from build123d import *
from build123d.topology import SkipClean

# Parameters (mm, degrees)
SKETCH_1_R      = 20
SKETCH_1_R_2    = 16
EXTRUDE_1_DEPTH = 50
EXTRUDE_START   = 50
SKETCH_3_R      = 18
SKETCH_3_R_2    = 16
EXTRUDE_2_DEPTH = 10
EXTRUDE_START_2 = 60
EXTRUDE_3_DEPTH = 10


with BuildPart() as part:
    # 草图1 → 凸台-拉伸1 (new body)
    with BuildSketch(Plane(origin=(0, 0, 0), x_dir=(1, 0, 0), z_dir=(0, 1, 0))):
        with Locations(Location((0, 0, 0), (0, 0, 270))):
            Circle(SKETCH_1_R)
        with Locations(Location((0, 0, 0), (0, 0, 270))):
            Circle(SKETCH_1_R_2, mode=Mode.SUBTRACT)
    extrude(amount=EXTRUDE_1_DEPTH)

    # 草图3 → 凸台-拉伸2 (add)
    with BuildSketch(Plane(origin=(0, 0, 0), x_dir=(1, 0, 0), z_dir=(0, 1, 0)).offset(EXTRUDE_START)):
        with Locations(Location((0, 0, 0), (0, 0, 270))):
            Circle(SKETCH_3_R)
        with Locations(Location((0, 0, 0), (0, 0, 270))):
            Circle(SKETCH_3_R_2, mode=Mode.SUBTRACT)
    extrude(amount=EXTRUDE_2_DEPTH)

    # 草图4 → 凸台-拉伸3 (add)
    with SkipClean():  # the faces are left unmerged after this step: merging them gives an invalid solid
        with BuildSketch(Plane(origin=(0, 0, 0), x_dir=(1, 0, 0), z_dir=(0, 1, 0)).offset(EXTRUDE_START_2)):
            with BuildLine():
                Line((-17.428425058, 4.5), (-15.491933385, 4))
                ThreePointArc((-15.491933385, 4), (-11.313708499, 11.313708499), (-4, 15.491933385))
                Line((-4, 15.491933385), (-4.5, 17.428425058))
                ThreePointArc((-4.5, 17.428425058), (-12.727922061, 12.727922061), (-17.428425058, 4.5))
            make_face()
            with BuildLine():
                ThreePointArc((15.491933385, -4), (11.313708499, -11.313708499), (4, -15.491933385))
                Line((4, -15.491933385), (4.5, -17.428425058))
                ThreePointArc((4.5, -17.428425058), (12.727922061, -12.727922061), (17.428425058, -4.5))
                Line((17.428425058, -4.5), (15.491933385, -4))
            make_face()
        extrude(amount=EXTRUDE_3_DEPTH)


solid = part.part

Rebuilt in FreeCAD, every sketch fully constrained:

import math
import FreeCAD as App
import Part
import Sketcher
from FreeCAD import Vector
Q = App.Units.Quantity

doc = App.newDocument("Part")
body = doc.addObject("PartDesign::Body", "Body")

# Sketch on XZ plane
sketch1 = doc.addObject("Sketcher::SketchObject", "Sketch")
body.addObject(sketch1)
sketch1.AttachmentSupport = (doc.XZ_Plane, [""])
sketch1.MapMode = "FlatFace"
sketch1.addGeometry(Part.Circle(Vector(0, 0, 0), Vector(0, 0, 1), 20), False)
sketch1.addGeometry(Part.Circle(Vector(0, 0, 0), Vector(0, 0, 1), 16), False)
sketch1.addConstraint(Sketcher.Constraint("Coincident", 0, 3, -1, 1))
sketch1.addConstraint(Sketcher.Constraint("Coincident", 1, 3, -1, 1))
sketch1.addConstraint(Sketcher.Constraint("Diameter", 0, Q("40 mm")))
sketch1.addConstraint(Sketcher.Constraint("Diameter", 1, Q("32 mm")))
pad1 = doc.addObject("PartDesign::Pad", "Pad")
body.addObject(pad1)
pad1.Profile = sketch1
pad1.Length = 50
pad1.Reversed = True

# Sketch on XZ plane
sketch2 = doc.addObject("Sketcher::SketchObject", "Sketch001")
body.addObject(sketch2)
sketch2.AttachmentSupport = (doc.XZ_Plane, [""])
sketch2.MapMode = "FlatFace"
sketch2.AttachmentOffset = App.Placement(Vector(0, 0, -50), App.Rotation())
sketch2.addGeometry(Part.Circle(Vector(0, 0, 0), Vector(0, 0, 1), 18), False)
sketch2.addGeometry(Part.Circle(Vector(0, 0, 0), Vector(0, 0, 1), 16), False)
sketch2.addConstraint(Sketcher.Constraint("Coincident", 0, 3, -1, 1))
sketch2.addConstraint(Sketcher.Constraint("Coincident", 1, 3, -1, 1))
sketch2.addConstraint(Sketcher.Constraint("Diameter", 0, Q("36 mm")))
sketch2.addConstraint(Sketcher.Constraint("Diameter", 1, Q("32 mm")))
pad2 = doc.addObject("PartDesign::Pad", "Pad001")
body.addObject(pad2)
pad2.Profile = sketch2
pad2.Length = 10
pad2.Reversed = True

# Sketch on XZ plane
sketch3 = doc.addObject("Sketcher::SketchObject", "Sketch002")
body.addObject(sketch3)
sketch3.AttachmentSupport = (doc.XZ_Plane, [""])
sketch3.MapMode = "FlatFace"
sketch3.AttachmentOffset = App.Placement(Vector(0, 0, -60), App.Rotation())
sketch3.addGeometry(Part.LineSegment(Vector(-17.428425, -4.5, 0), Vector(-15.491933, -4, 0)), False)
sketch3.addGeometry(Part.ArcOfCircle(Part.Circle(Vector(0, 0, 0), Vector(0, 0, 1), 16), math.radians(-165.522488), math.radians(-104.477512)), False)
sketch3.addGeometry(Part.LineSegment(Vector(-4, -15.491933, 0), Vector(-4.5, -17.428425, 0)), False)
sketch3.addGeometry(Part.ArcOfCircle(Part.Circle(Vector(0, 0, 0), Vector(0, 0, 1), 18), math.radians(-165.522488), math.radians(-104.477512)), False)
sketch3.addGeometry(Part.ArcOfCircle(Part.Circle(Vector(0, 0, 0), Vector(0, 0, 1), 16), math.radians(14.477512), math.radians(75.522488)), False)
sketch3.addGeometry(Part.LineSegment(Vector(4, 15.491933, 0), Vector(4.5, 17.428425, 0)), False)
sketch3.addGeometry(Part.ArcOfCircle(Part.Circle(Vector(0, 0, 0), Vector(0, 0, 1), 18), math.radians(14.477512), math.radians(75.522488)), False)
sketch3.addGeometry(Part.LineSegment(Vector(17.428425, 4.5, 0), Vector(15.491933, 4, 0)), False)
sketch3.addConstraint(Sketcher.Constraint("Coincident", 0, 2, 1, 1))
sketch3.addConstraint(Sketcher.Constraint("Coincident", 1, 2, 2, 1))
sketch3.addConstraint(Sketcher.Constraint("Coincident", 2, 2, 3, 2))
sketch3.addConstraint(Sketcher.Constraint("Coincident", 3, 1, 0, 1))
sketch3.addConstraint(Sketcher.Constraint("Coincident", 4, 2, 5, 1))
sketch3.addConstraint(Sketcher.Constraint("Coincident", 5, 2, 6, 2))
sketch3.addConstraint(Sketcher.Constraint("Coincident", 6, 1, 7, 1))
sketch3.addConstraint(Sketcher.Constraint("Coincident", 7, 2, 4, 1))
sketch3.addConstraint(Sketcher.Constraint("Coincident", 1, 3, -1, 1))
sketch3.addConstraint(Sketcher.Constraint("Coincident", 3, 3, -1, 1))
sketch3.addConstraint(Sketcher.Constraint("Coincident", 4, 3, -1, 1))
sketch3.addConstraint(Sketcher.Constraint("Coincident", 6, 3, -1, 1))
sketch3.addConstraint(Sketcher.Constraint("Equal", 1, 4))
sketch3.addConstraint(Sketcher.Constraint("Equal", 3, 6))
sketch3.addConstraint(Sketcher.Constraint("Parallel", 2, 5))
sketch3.addConstraint(Sketcher.Constraint("Parallel", 0, 7))
sketch3.addConstraint(Sketcher.Constraint("Radius", 1, Q("16 mm")))
sketch3.addConstraint(Sketcher.Constraint("Radius", 3, Q("18 mm")))
sketch3.addConstraint(Sketcher.Constraint("DistanceY", 0, 2, -1, 1, Q("4 mm")))
sketch3.addConstraint(Sketcher.Constraint("DistanceX", 1, 2, -1, 1, Q("4 mm")))
sketch3.addConstraint(Sketcher.Constraint("DistanceX", -1, 1, 4, 2, Q("4 mm")))
sketch3.addConstraint(Sketcher.Constraint("DistanceY", -1, 1, 7, 2, Q("4 mm")))
sketch3.addConstraint(Sketcher.Constraint("DistanceX", 2, 2, -1, 1, Q("4.5 mm")))
sketch3.addConstraint(Sketcher.Constraint("DistanceY", 3, 1, -1, 1, Q("4.5 mm")))
pad3 = doc.addObject("PartDesign::Pad", "Pad002")
body.addObject(pad3)
pad3.Profile = sketch3
pad3.Length = 10
pad3.Reversed = True

doc.recompute()
